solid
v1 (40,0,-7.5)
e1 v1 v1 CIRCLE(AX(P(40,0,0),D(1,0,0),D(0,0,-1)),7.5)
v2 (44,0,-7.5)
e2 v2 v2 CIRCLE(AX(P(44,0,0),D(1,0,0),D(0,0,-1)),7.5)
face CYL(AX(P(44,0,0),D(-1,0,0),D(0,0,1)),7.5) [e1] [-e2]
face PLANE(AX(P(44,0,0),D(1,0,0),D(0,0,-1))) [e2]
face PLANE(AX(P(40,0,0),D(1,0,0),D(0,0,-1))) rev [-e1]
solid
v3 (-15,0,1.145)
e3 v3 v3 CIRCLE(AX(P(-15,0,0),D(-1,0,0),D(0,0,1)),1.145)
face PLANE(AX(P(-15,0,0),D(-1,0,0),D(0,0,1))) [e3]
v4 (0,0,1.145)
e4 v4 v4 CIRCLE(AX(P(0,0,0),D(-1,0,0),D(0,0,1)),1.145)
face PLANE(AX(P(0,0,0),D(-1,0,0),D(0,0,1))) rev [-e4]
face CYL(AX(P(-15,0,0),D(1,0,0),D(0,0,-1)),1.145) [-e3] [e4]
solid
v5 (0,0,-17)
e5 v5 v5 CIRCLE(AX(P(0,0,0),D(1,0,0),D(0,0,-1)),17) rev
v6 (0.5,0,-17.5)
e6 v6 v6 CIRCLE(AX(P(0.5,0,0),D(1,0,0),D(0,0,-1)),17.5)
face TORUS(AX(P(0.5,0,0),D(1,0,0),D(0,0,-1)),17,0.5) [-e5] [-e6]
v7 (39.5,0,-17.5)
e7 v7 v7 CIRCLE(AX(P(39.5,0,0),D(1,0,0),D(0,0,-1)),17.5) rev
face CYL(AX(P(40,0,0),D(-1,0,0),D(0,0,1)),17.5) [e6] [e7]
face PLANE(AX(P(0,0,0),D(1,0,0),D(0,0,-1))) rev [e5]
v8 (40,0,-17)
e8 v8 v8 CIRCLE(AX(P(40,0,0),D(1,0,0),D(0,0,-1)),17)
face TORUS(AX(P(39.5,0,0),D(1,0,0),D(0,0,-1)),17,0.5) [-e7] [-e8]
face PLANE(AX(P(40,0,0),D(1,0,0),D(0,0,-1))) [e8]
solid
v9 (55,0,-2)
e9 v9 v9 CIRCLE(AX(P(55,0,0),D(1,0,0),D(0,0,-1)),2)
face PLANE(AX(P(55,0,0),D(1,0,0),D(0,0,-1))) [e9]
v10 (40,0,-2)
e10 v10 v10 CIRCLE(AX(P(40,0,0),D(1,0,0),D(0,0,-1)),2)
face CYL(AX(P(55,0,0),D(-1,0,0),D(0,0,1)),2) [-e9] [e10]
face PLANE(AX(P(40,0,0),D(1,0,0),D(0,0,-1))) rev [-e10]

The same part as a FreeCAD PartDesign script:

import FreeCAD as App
import Part
import Sketcher


def edges_at(feature, points):
    """Names of the edges that pass closest to the given points."""
    edges = feature.Shape.Edges
    near = lambda p: min(range(len(edges)), key=lambda i: edges[i].distToShape(Part.Vertex(*p))[0])
    return sorted({f"Edge{near(p) + 1}" for p in points})

doc = App.newDocument("Part")
params = doc.addObject("Spreadsheet::Sheet", "Params")
for row, (alias, value) in enumerate([
    ("sketch1_diameter", "35 mm"),
    ("pad1_length", "40 mm"),
    ("fillet_radius", "0.5 mm"),
    ("fillet2_radius", "0.5 mm"),
    ("sketch2_diameter", "4 mm"),
    ("pad2_length", "15 mm"),
    ("sketch3_diameter", "15 mm"),
    ("pad3_length", "4 mm"),
    ("sketch4_diameter", "2.29 mm"),
    ("pad4_length", "15 mm"),
], start=1):
    params.set(f"A{row}", alias)
    params.set(f"B{row}", "=" + value)
    params.setAlias(f"B{row}", alias)

body = doc.addObject("PartDesign::Body", "Body")

sketch1 = body.newObject("Sketcher::SketchObject", "Sketch")
sketch1.AttachmentSupport = (doc.getObject("YZ_Plane"), [""])
sketch1.MapMode = "FlatFace"
sketch1.addGeometry(Part.Circle(App.Vector(0, 0, 0), App.Vector(0, 0, 1), 18), False)
sketch1.addConstraint(Sketcher.Constraint("Coincident", 0, 3, -1, 1))
sketch1.addConstraint(Sketcher.Constraint("Diameter", 0, 35.0))
sketch1.setExpression("Constraints[1]", "Params.sketch1_diameter")
pad1 = body.newObject("PartDesign::Pad", "Pad")
pad1.Profile = sketch1
pad1.setExpression("Length", "Params.pad1_length")
doc.recompute()

fillet = body.newObject("PartDesign::Fillet", "Fillet")
fillet.Base = (pad1, edges_at(pad1, [(0, 0, 17.5)]))
fillet.setExpression("Radius", "Params.fillet_radius")
doc.recompute()

fillet2 = body.newObject("PartDesign::Fillet", "Fillet001")
fillet2.Base = (fillet, edges_at(fillet, [(40, 0, 17.5)]))
fillet2.setExpression("Radius", "Params.fillet2_radius")
body2 = doc.addObject("PartDesign::Body", "Body001")

sketch2 = body2.newObject("Sketcher::SketchObject", "Sketch001")
sketch2.AttachmentSupport = (doc.getObject("YZ_Plane001"), [""])
sketch2.MapMode = "FlatFace"
sketch2.AttachmentOffset = App.Placement(App.Vector(0, 0, 40), App.Rotation())
sketch2.addGeometry(Part.Circle(App.Vector(0, 0, 0), App.Vector(0, 0, 1), 2), False)
sketch2.addConstraint(Sketcher.Constraint("Coincident", 0, 3, -1, 1))
sketch2.addConstraint(Sketcher.Constraint("Diameter", 0, 4.0))
sketch2.setExpression("Constraints[1]", "Params.sketch2_diameter")
pad2 = body2.newObject("PartDesign::Pad", "Pad001")
pad2.Profile = sketch2
pad2.setExpression("Length", "Params.pad2_length")
body3 = doc.addObject("PartDesign::Body", "Body002")

sketch3 = body3.newObject("Sketcher::SketchObject", "Sketch002")
sketch3.AttachmentSupport = (doc.getObject("YZ_Plane002"), [""])
sketch3.MapMode = "FlatFace"
sketch3.AttachmentOffset = App.Placement(App.Vector(0, 0, 40), App.Rotation())
sketch3.addGeometry(Part.Circle(App.Vector(0, 0, 0), App.Vector(0, 0, 1), 8), False)
sketch3.addConstraint(Sketcher.Constraint("Coincident", 0, 3, -1, 1))
sketch3.addConstraint(Sketcher.Constraint("Diameter", 0, 15.0))
sketch3.setExpression("Constraints[1]", "Params.sketch3_diameter")
pad3 = body3.newObject("PartDesign::Pad", "Pad002")
pad3.Profile = sketch3
pad3.setExpression("Length", "Params.pad3_length")
body4 = doc.addObject("PartDesign::Body", "Body003")

sketch4 = body4.newObject("Sketcher::SketchObject", "Sketch003")
sketch4.AttachmentSupport = (doc.getObject("YZ_Plane003"), [""])
sketch4.MapMode = "FlatFace"
sketch4.addGeometry(Part.Circle(App.Vector(0, 0, 0), App.Vector(0, 0, 1), 1.1), False)
sketch4.addConstraint(Sketcher.Constraint("Coincident", 0, 3, -1, 1))
sketch4.addConstraint(Sketcher.Constraint("Diameter", 0, 2.29))
sketch4.setExpression("Constraints[1]", "Params.sketch4_diameter")
pad4 = body4.newObject("PartDesign::Pad", "Pad003")
pad4.Profile = sketch4
pad4.setExpression("Length", "Params.pad4_length")
pad4.Reversed = True

doc.recompute()
